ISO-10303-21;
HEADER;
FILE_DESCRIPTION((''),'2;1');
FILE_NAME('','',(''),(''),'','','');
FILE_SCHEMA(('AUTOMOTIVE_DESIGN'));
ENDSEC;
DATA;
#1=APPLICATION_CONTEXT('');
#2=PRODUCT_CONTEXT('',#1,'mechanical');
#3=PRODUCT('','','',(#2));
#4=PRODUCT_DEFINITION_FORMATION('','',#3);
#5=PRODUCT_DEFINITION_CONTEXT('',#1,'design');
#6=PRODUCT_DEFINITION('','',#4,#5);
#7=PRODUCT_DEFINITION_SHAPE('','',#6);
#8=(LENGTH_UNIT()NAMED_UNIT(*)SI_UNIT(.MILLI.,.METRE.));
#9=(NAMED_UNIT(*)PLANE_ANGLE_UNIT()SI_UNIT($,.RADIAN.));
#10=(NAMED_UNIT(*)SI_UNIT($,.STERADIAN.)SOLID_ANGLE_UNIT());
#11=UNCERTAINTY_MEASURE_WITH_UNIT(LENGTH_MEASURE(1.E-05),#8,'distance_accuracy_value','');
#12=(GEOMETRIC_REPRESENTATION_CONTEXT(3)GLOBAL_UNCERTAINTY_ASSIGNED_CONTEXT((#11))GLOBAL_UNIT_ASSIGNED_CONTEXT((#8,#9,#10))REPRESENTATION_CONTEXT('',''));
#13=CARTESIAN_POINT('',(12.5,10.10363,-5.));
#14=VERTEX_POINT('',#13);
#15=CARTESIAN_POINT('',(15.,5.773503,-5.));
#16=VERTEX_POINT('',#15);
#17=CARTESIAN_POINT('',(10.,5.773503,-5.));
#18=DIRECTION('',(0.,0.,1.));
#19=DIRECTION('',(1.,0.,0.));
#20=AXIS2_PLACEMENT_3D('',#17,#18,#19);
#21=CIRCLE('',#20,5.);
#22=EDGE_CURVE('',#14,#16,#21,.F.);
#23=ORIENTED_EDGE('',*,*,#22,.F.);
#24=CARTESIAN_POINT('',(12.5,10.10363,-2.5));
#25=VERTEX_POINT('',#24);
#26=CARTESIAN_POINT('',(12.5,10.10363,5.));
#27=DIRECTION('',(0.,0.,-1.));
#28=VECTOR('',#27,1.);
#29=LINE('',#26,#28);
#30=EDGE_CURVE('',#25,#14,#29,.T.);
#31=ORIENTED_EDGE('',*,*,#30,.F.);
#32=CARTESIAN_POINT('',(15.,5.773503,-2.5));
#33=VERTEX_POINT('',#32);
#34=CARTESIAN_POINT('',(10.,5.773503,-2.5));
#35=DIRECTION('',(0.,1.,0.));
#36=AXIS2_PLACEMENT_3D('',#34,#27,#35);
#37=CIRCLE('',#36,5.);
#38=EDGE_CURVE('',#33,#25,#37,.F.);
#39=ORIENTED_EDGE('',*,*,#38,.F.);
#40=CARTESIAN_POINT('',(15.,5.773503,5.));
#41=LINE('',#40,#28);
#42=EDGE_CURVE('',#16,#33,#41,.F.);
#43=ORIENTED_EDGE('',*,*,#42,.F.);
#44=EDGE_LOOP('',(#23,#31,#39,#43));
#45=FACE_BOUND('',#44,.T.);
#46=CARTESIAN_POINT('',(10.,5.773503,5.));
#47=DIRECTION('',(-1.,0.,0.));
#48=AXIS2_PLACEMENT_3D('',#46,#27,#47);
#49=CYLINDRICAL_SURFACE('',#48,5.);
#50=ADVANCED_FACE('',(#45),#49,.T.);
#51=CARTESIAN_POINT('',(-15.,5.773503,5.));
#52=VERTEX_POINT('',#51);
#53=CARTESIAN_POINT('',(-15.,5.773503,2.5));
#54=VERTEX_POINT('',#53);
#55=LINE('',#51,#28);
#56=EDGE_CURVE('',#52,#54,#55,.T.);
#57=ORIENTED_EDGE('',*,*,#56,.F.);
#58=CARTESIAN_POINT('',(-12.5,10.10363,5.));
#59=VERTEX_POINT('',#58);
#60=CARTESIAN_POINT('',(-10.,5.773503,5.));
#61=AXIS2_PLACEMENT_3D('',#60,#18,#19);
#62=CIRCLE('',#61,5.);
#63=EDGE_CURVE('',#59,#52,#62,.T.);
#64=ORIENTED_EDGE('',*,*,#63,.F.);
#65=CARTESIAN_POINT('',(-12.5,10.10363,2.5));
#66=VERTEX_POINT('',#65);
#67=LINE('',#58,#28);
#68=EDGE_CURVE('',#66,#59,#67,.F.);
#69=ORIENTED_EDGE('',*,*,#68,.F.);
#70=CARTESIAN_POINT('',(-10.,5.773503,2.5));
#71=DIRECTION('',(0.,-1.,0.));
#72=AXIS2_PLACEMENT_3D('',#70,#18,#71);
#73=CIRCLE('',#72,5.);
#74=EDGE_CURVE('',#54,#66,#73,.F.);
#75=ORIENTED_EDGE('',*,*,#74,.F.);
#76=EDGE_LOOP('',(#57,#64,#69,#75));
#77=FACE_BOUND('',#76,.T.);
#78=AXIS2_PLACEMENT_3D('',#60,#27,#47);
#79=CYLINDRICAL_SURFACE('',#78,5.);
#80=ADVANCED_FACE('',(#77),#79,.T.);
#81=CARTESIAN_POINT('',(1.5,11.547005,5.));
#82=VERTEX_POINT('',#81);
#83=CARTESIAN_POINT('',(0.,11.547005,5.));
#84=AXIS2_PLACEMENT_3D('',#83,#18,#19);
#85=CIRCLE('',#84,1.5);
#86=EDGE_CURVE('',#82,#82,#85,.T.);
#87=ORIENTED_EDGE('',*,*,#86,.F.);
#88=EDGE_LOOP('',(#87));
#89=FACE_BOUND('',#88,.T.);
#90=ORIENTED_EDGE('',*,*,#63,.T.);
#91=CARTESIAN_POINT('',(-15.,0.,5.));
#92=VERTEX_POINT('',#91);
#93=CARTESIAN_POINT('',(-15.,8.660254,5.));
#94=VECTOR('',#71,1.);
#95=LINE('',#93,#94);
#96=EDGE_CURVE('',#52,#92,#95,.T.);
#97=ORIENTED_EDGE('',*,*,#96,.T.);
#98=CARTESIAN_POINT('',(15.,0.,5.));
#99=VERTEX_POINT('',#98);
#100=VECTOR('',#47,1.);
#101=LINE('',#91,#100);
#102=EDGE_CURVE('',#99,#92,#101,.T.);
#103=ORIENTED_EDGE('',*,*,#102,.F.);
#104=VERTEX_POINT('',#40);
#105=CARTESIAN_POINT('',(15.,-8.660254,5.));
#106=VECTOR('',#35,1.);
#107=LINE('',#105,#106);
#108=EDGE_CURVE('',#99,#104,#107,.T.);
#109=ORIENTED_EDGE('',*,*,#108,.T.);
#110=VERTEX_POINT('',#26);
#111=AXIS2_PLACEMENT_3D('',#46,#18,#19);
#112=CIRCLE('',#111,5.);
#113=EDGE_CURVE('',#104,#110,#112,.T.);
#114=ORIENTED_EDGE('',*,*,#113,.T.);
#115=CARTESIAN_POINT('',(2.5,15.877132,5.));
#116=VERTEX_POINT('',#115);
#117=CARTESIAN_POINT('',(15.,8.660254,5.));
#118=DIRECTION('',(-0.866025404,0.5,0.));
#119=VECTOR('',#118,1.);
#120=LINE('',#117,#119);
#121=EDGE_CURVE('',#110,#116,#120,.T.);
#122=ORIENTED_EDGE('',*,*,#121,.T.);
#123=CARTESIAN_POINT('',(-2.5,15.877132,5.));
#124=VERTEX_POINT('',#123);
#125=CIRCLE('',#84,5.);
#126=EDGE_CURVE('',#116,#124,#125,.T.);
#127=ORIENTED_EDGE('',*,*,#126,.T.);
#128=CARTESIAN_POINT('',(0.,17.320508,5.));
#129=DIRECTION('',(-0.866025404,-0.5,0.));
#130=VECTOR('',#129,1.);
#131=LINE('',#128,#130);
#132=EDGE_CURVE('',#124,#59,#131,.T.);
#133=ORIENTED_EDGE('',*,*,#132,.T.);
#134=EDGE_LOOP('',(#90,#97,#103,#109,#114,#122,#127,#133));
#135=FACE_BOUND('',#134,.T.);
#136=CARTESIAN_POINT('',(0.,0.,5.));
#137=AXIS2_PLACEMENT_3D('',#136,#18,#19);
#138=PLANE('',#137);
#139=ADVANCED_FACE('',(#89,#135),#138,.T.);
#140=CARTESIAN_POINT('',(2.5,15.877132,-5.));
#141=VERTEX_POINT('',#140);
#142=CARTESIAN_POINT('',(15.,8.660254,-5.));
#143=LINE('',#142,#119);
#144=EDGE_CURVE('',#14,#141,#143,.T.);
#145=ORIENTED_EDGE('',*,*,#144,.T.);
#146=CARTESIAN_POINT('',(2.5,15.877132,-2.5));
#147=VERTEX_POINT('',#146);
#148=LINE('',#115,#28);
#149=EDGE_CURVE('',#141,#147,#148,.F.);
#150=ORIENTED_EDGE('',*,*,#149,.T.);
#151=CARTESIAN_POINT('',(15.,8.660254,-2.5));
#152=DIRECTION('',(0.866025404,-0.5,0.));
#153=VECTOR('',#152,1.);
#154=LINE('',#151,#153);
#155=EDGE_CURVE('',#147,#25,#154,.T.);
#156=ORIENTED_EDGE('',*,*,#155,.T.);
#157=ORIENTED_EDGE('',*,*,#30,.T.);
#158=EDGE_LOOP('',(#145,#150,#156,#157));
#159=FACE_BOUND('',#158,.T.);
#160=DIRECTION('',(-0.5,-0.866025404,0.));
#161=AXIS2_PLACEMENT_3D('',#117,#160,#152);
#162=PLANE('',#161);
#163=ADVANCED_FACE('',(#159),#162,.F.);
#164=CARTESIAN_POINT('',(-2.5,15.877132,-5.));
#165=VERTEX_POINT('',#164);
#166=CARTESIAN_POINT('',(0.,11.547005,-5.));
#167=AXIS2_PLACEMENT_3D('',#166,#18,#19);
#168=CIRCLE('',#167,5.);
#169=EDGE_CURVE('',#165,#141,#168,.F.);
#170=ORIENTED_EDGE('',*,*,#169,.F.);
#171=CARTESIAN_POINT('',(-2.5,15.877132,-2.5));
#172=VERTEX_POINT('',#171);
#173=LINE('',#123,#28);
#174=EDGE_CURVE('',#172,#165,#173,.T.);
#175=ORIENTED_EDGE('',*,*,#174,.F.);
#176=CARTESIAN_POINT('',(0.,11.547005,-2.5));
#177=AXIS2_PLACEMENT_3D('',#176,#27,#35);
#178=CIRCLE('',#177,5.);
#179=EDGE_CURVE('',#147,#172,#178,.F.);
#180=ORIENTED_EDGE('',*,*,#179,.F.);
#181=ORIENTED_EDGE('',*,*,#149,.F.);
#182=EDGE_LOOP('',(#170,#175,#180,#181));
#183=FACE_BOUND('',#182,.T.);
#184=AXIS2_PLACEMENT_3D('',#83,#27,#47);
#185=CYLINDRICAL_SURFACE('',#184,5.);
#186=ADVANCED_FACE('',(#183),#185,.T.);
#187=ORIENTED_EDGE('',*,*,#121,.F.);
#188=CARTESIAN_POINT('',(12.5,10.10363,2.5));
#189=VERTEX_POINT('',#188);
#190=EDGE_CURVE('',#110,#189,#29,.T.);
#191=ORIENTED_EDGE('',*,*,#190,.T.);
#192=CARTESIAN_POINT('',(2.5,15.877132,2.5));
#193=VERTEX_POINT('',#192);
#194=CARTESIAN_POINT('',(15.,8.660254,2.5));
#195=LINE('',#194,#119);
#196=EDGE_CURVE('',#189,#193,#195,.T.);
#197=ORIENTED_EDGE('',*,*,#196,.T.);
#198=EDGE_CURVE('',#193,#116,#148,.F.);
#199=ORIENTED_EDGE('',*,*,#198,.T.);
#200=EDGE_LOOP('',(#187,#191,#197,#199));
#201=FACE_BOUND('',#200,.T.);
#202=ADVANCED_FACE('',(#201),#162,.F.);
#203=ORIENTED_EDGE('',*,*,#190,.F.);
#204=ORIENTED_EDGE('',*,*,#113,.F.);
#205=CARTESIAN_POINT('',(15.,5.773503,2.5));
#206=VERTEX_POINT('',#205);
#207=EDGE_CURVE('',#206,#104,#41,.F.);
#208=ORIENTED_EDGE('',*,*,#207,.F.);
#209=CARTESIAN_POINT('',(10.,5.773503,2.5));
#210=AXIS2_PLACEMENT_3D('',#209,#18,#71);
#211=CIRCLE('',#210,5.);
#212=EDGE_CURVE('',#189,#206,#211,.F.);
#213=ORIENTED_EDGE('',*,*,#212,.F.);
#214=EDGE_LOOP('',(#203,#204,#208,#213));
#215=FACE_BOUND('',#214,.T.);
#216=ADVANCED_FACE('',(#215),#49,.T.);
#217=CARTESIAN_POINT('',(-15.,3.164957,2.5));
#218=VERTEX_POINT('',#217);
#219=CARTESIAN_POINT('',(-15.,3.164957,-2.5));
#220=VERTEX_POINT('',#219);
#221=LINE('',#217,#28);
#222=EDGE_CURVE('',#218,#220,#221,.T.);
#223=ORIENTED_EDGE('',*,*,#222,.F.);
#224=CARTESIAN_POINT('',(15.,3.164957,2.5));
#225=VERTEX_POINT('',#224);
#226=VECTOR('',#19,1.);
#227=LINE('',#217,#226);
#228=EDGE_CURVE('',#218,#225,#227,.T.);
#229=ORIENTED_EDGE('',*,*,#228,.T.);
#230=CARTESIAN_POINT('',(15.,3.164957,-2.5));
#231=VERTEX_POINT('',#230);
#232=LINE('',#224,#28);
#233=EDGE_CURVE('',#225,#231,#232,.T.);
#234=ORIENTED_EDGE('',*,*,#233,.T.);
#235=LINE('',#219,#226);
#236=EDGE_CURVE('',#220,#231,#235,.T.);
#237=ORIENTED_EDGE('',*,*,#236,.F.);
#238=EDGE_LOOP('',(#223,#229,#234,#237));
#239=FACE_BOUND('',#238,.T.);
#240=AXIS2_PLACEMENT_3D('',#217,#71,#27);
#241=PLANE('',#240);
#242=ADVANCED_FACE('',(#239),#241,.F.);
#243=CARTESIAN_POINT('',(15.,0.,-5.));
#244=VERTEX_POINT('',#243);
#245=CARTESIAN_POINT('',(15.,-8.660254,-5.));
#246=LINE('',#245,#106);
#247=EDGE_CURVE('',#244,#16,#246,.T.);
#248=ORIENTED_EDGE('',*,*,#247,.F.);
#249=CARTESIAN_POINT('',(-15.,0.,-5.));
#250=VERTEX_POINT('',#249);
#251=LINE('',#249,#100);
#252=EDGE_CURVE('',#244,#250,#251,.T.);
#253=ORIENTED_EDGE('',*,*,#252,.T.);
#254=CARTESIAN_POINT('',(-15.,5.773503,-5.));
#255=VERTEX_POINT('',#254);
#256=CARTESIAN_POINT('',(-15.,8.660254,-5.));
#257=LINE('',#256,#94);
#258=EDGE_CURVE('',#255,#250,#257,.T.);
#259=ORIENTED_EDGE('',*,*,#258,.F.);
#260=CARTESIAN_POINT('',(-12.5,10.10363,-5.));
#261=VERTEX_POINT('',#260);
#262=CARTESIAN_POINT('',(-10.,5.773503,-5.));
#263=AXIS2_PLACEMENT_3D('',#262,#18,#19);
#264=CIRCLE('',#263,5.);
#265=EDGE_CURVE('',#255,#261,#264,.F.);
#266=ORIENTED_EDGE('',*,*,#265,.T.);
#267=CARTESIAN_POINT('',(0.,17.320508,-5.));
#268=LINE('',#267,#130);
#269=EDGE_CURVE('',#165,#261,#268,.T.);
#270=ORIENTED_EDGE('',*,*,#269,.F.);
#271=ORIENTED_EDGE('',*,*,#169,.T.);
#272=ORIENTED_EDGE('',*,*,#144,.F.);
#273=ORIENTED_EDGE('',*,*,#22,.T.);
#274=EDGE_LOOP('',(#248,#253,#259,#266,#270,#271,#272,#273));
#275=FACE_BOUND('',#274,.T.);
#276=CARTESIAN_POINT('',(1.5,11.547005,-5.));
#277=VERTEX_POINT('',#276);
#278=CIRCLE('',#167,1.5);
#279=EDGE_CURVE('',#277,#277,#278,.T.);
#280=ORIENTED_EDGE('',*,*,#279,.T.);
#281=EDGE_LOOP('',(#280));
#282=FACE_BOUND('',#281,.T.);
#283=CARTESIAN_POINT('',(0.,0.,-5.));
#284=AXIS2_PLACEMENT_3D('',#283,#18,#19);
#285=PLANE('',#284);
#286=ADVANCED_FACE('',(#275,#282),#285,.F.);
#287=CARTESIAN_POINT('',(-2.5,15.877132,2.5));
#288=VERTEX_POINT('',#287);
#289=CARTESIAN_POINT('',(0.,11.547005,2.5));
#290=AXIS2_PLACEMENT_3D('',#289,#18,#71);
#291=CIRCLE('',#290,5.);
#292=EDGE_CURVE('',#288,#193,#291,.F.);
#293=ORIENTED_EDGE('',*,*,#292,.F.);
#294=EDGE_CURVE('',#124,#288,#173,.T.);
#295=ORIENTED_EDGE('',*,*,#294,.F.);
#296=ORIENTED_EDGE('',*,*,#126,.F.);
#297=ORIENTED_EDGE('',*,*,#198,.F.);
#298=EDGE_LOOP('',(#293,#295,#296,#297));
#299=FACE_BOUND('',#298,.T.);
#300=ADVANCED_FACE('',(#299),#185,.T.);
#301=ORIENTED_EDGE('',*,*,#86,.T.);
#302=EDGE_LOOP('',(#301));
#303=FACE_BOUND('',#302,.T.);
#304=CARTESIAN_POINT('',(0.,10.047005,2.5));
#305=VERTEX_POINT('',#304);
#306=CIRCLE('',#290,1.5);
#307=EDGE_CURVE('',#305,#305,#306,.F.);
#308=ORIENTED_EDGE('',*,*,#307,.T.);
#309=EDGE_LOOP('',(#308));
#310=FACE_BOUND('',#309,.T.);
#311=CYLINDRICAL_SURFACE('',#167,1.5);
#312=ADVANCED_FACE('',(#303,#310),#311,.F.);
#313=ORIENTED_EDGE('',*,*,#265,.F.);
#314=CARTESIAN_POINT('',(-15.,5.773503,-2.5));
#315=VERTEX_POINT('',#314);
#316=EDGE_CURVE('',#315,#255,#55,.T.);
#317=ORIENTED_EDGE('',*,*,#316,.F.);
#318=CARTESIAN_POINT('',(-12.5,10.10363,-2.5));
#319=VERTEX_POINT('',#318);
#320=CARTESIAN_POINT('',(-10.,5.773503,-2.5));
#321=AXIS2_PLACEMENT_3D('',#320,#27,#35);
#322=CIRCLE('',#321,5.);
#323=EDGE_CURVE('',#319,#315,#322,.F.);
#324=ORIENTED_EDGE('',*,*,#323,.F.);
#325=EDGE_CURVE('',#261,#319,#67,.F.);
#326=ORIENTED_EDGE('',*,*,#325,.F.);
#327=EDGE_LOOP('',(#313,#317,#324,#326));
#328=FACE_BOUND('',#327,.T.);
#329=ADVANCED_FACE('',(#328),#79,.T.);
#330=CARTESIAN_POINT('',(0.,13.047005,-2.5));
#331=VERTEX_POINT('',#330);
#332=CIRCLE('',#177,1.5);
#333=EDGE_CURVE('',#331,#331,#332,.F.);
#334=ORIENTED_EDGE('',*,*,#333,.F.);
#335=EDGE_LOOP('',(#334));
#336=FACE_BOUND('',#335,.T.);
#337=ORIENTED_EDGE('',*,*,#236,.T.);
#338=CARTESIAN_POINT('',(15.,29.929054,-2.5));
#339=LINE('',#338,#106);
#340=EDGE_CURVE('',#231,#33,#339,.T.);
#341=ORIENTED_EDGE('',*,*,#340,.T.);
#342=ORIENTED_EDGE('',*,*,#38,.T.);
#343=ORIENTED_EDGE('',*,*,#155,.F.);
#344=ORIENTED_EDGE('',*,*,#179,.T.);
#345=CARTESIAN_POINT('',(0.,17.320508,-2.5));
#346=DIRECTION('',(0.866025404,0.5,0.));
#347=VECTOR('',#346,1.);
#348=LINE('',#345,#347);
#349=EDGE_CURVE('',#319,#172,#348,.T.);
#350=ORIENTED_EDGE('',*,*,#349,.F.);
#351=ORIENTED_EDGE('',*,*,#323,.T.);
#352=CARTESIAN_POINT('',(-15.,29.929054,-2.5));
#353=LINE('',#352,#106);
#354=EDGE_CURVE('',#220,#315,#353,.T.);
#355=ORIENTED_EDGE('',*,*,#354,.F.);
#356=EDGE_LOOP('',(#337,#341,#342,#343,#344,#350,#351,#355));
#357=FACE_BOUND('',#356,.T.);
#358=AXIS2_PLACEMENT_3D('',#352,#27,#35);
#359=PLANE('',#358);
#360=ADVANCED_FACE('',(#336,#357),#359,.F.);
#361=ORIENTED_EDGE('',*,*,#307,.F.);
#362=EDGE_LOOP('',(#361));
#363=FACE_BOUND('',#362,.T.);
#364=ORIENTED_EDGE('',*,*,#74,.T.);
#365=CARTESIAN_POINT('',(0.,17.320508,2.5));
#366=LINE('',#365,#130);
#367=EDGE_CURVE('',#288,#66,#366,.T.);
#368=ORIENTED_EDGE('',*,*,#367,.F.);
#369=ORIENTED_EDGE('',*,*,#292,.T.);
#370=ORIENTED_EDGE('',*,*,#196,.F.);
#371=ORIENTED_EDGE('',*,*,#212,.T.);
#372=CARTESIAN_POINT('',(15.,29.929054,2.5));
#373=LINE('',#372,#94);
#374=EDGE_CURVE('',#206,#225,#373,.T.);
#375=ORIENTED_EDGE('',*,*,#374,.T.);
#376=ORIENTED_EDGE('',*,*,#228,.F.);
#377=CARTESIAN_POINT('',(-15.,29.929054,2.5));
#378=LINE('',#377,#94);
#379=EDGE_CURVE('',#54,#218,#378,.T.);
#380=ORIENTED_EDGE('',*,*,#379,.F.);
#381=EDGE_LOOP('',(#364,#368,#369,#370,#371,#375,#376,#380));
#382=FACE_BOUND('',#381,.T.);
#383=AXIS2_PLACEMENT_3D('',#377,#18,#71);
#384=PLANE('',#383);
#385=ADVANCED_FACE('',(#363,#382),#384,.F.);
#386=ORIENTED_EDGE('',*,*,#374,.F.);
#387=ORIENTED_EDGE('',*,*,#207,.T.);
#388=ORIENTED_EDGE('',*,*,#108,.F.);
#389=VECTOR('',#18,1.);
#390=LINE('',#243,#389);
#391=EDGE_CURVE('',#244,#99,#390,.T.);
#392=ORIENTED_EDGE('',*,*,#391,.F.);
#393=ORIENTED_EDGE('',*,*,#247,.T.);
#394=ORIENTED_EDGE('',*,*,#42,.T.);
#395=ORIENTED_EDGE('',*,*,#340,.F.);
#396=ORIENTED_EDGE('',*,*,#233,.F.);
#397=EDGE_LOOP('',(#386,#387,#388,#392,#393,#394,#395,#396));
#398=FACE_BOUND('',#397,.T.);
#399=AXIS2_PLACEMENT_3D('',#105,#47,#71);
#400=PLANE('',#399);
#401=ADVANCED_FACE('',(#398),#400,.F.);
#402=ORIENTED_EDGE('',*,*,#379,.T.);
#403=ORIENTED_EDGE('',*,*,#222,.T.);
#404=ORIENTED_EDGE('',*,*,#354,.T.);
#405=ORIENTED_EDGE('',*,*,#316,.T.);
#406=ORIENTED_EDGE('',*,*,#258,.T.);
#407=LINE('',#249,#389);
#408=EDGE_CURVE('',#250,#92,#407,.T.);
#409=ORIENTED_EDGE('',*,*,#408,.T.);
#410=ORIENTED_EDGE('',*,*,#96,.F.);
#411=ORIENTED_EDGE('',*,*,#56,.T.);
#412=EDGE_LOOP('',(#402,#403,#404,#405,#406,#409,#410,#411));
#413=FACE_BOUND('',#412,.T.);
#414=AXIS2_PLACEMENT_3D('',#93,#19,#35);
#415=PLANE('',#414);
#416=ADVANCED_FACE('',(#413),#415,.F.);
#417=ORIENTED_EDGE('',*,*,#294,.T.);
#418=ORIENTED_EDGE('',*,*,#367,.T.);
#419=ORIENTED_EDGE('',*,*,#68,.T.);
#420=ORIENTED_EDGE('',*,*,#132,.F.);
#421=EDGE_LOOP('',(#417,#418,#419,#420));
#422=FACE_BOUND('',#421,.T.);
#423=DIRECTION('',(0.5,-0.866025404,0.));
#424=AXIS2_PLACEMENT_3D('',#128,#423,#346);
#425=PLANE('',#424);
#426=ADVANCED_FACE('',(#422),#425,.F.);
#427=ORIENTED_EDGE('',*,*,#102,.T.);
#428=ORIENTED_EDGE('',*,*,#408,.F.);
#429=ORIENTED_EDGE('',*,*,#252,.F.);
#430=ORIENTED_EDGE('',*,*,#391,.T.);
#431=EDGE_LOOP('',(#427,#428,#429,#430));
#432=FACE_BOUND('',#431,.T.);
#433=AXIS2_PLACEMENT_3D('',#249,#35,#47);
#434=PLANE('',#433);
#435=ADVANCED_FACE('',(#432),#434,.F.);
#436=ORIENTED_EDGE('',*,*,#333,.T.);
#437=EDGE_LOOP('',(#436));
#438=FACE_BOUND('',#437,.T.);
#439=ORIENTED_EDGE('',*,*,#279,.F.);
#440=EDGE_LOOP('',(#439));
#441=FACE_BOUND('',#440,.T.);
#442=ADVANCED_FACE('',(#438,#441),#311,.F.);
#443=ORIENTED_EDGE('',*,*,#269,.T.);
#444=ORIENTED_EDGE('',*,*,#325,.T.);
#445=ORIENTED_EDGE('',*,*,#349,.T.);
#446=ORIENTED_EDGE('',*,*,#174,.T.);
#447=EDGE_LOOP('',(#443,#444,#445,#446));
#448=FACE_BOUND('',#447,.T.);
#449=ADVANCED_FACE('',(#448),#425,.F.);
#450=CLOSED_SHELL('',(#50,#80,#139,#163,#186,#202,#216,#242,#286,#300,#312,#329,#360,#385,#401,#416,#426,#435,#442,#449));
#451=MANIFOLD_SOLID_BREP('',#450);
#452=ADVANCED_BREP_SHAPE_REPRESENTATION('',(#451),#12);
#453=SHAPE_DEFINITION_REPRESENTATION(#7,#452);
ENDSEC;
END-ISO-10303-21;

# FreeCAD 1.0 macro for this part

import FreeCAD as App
import Part
import Sketcher
Q = App.Units.Quantity


def edges_at(feature, points):
    """Names of the edges that pass closest to the given points."""
    edges = feature.Shape.Edges
    near = lambda p: min(range(len(edges)), key=lambda i: edges[i].distToShape(Part.Vertex(*p))[0])
    return sorted({f"Edge{near(p) + 1}" for p in points})


def add_polygon(sketch, points):
    """Adds a closed chain of lines whose ends are joined by coincident constraints."""
    first, n = sketch.GeometryCount, len(points)
    for a, b in zip(points, points[1:] + points[:1]):
        sketch.addGeometry(Part.LineSegment(App.Vector(*a, 0), App.Vector(*b, 0)), False)
    for i in range(n):
        sketch.addConstraint(Sketcher.Constraint("Coincident", first + i, 2, first + (i + 1) % n, 1))

doc = App.newDocument("Part")
body = doc.addObject("PartDesign::Body", "Body")

sketch1 = doc.addObject("Sketcher::SketchObject", "Sketch")
body.addObject(sketch1)
sketch1.AttachmentSupport = (doc.XY_Plane, [""])
sketch1.MapMode = "FlatFace"
add_polygon(sketch1, [(0, -17), (15, -9), (15, 9), (0, 17), (-15, 9), (-15, -9)])
sketch1.addConstraint([
    Sketcher.Constraint("Vertical", 1),
    Sketcher.Constraint("Vertical", 4),
    Sketcher.Constraint("Symmetric", 0, 2, 3, 2, -1, 1),
    Sketcher.Constraint("Symmetric", 2, 2, 5, 2, -1, 1),
    Sketcher.Constraint("PointOnObject", 2, 2, -2),
    Sketcher.Constraint("Parallel", 2, 5),
    Sketcher.Constraint("Horizontal", 1, 2, 3, 2),
    Sketcher.Constraint("Angle", 0, Q("30 deg")),
    Sketcher.Constraint("DistanceX", -1, 1, 0, 2, Q("15 mm")),
    Sketcher.Constraint("DistanceY", 1, 1, 1, 2, Q("17.320508 mm")),
])
pad1 = doc.addObject("PartDesign::Pad", "Pad")
body.addObject(pad1)
pad1.Profile = sketch1
pad1.Length = 10
pad1.Midplane = True

sketch2 = doc.addObject("Sketcher::SketchObject", "Sketch001")
body.addObject(sketch2)
sketch2.AttachmentSupport = (doc.XY_Plane, [""])
sketch2.MapMode = "FlatFace"
sketch2.AttachmentOffset = App.Placement(App.Vector(0, 0, 5), App.Rotation())
add_polygon(sketch2, [(-15, 0), (-15, -19), (15, -19), (15, 0)])
sketch2.addConstraint([
    Sketcher.Constraint("Vertical", 0),
    Sketcher.Constraint("Horizontal", 1),
    Sketcher.Constraint("Vertical", 2),
    Sketcher.Constraint("Horizontal", 3),
    Sketcher.Constraint("Symmetric", 2, 2, 3, 2, -1, 1),
    Sketcher.Constraint("DistanceX", 1, 1, 1, 2, Q("30 mm")),
    Sketcher.Constraint("DistanceY", 0, 2, 0, 1, Q("19.460287 mm")),
])
pocket1 = doc.addObject("PartDesign::Pocket", "Pocket")
body.addObject(pocket1)
pocket1.Profile = sketch2
pocket1.Type = "ThroughAll"
doc.recompute()

fillet = doc.addObject("PartDesign::Fillet", "Fillet")
body.addObject(fillet)
fillet.Base = (pocket1, edges_at(pocket1, [(-15, 8.66, 0), (0, 17.321, 0), (15, 8.66, 0)]))
fillet.Radius = 5

sketch3 = doc.addObject("Sketcher::SketchObject", "Sketch002")
body.addObject(sketch3)
sketch3.AttachmentSupport = (doc.XY_Plane, [""])
sketch3.MapMode = "FlatFace"
sketch3.AttachmentOffset = App.Placement(App.Vector(0, 0, 5), App.Rotation())
sketch3.addGeometry(Part.Circle(App.Vector(0, 11.5, 0), App.Vector(0, 0, 1), 1.5), False)
sketch3.addConstraint([
    Sketcher.Constraint("PointOnObject", 0, 3, -2),
    Sketcher.Constraint("Diameter", 0, Q("3 mm")),
    Sketcher.Constraint("DistanceY", -1, 1, 0, 3, Q("11.547005 mm")),
])
pocket2 = doc.addObject("PartDesign::Pocket", "Pocket001")
body.addObject(pocket2)
pocket2.Profile = sketch3
pocket2.Type = "ThroughAll"

sketch4 = doc.addObject("Sketcher::SketchObject", "Sketch003")
body.addObject(sketch4)
sketch4.AttachmentSupport = (doc.YZ_Plane, [""])
sketch4.MapMode = "FlatFace"
add_polygon(sketch4, [(30, 2), (3, 2), (3, -2), (30, -2)])
sketch4.addConstraint([
    Sketcher.Constraint("Horizontal", 0),
    Sketcher.Constraint("Vertical", 1),
    Sketcher.Constraint("Horizontal", 2),
    Sketcher.Constraint("Vertical", 3),
    Sketcher.Constraint("DistanceY", 1, 2, 1, 1, Q("5 mm")),
    Sketcher.Constraint("DistanceY", -1, 1, 0, 2, Q("2.5 mm")),
    Sketcher.Constraint("DistanceX", 0, 2, 0, 1, Q("26.764096 mm")),
    Sketcher.Constraint("DistanceX", -1, 1, 0, 2, Q("3.164957 mm")),
])
pocket3 = doc.addObject("PartDesign::Pocket", "Pocket002")
body.addObject(pocket3)
pocket3.Profile = sketch4
pocket3.Type = "ThroughAll"
pocket3.Midplane = True

doc.recompute()
